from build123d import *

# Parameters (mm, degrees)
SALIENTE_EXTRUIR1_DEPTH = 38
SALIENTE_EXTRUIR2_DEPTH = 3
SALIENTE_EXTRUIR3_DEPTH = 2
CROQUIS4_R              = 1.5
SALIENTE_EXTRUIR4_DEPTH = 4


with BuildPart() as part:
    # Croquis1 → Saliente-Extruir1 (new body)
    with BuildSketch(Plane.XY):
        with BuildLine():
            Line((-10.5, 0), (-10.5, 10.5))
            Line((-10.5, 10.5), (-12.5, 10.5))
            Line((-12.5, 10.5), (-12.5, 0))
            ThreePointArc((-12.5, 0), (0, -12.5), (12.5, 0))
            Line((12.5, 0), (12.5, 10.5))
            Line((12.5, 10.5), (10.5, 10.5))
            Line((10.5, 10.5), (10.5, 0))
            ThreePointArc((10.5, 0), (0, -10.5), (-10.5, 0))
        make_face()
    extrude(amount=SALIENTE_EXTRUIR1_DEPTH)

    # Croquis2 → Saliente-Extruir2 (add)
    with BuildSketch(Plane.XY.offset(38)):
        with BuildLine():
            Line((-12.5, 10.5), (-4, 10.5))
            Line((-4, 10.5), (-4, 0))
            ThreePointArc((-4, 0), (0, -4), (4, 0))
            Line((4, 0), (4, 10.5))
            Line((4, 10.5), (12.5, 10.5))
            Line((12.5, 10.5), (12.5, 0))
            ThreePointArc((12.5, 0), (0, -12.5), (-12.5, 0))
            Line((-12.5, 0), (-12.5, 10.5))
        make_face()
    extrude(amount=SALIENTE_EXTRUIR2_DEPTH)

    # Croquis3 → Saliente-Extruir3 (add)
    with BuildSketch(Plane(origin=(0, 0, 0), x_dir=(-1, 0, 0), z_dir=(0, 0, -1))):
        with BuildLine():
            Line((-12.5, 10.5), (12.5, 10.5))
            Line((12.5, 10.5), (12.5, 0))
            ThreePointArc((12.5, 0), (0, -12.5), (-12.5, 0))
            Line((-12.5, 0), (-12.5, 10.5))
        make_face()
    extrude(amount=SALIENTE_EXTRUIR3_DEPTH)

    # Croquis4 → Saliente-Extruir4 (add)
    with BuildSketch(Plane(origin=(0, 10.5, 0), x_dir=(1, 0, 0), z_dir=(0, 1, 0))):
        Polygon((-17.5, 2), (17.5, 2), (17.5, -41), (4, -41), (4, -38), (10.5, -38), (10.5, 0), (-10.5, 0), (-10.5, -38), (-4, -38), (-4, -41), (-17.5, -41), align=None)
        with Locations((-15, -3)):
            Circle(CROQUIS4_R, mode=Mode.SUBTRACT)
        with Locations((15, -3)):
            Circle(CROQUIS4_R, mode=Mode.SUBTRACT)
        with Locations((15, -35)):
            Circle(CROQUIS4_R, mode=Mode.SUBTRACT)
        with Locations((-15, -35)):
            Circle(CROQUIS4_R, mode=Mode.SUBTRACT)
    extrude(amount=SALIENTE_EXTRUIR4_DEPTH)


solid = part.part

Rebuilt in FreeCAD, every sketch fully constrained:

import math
import FreeCAD as App
import Part
import Sketcher
from FreeCAD import Vector

doc = App.newDocument("Part")
body = doc.addObject("PartDesign::Body", "Body")

# Sketch on XY plane
sketch1 = doc.addObject("Sketcher::SketchObject", "Sketch")
body.addObject(sketch1)
sketch1.AttachmentSupport = (doc.XY_Plane, [""])
sketch1.MapMode = "FlatFace"
sketch1.addGeometry([
    Part.LineSegment(Vector(-10.5, 0, 0), Vector(-10.5, 10.5, 0)),  # 0
    Part.LineSegment(Vector(-10.5, 10.5, 0), Vector(-12.5, 10.5, 0)),  # 1
    Part.LineSegment(Vector(-12.5, 10.5, 0), Vector(-12.5, 0, 0)),  # 2
    Part.ArcOfCircle(Part.Circle(Vector(0, 0, 0), Vector(0, 0, 1), 12.5), math.radians(180), math.radians(360)),  # 3
    Part.LineSegment(Vector(12.5, 0, 0), Vector(12.5, 10.5, 0)),  # 4
    Part.LineSegment(Vector(12.5, 10.5, 0), Vector(10.5, 10.5, 0)),  # 5
    Part.LineSegment(Vector(10.5, 10.5, 0), Vector(10.5, 0, 0)),  # 6
    Part.ArcOfCircle(Part.Circle(Vector(0, 0, 0), Vector(0, 0, 1), 10.5), math.radians(180), math.radians(360)),  # 7
], False)
sketch1.addConstraint([
    Sketcher.Constraint("Coincident", 0, 2, 1, 1),
    Sketcher.Constraint("Coincident", 1, 2, 2, 1),
    Sketcher.Constraint("Tangent", 2, 2, 3, 1),
    Sketcher.Constraint("Tangent", 3, 2, 4, 1),
    Sketcher.Constraint("Coincident", 4, 2, 5, 1),
    Sketcher.Constraint("Coincident", 5, 2, 6, 1),
    Sketcher.Constraint("Tangent", 6, 2, 7, 2),
    Sketcher.Constraint("Tangent", 7, 1, 0, 1),
    Sketcher.Constraint("Vertical", 0),
    Sketcher.Constraint("Horizontal", 1),
    Sketcher.Constraint("Vertical", 2),
    Sketcher.Constraint("Vertical", 4),
    Sketcher.Constraint("Horizontal", 5),
    Sketcher.Constraint("Vertical", 6),
    Sketcher.Constraint("Coincident", 3, 3, -1, 1),
    Sketcher.Constraint("Coincident", 7, 3, -1, 1),
    Sketcher.Constraint("Horizontal", 1, 2, 4, 2),
    Sketcher.Constraint("Radius", 3, 12.5),
    Sketcher.Constraint("Radius", 7, 10.5),
    Sketcher.Constraint("DistanceY", 0, 1, 0, 2, 10.5),
])
pad1 = doc.addObject("PartDesign::Pad", "Pad")
body.addObject(pad1)
pad1.Profile = sketch1
pad1.Length = 38

# Sketch on XY plane
sketch2 = doc.addObject("Sketcher::SketchObject", "Sketch001")
body.addObject(sketch2)
sketch2.AttachmentSupport = (doc.XY_Plane, [""])
sketch2.MapMode = "FlatFace"
sketch2.AttachmentOffset = App.Placement(Vector(0, 0, 38), App.Rotation())
sketch2.addGeometry([
    Part.LineSegment(Vector(-4, 10.5, 0), Vector(-12.5, 10.5, 0)),  # 0
    Part.LineSegment(Vector(-12.5, 10.5, 0), Vector(-12.5, 0, 0)),  # 1
    Part.ArcOfCircle(Part.Circle(Vector(0, 0, 0), Vector(0, 0, 1), 12.5), math.radians(180), math.radians(360)),  # 2
    Part.LineSegment(Vector(12.5, 0, 0), Vector(12.5, 10.5, 0)),  # 3
    Part.LineSegment(Vector(12.5, 10.5, 0), Vector(4, 10.5, 0)),  # 4
    Part.LineSegment(Vector(4, 10.5, 0), Vector(4, 0, 0)),  # 5
    Part.ArcOfCircle(Part.Circle(Vector(0, 0, 0), Vector(0, 0, 1), 4), math.radians(180), math.radians(360)),  # 6
    Part.LineSegment(Vector(-4, 0, 0), Vector(-4, 10.5, 0)),  # 7
], False)
sketch2.addConstraint([
    Sketcher.Constraint("Coincident", 0, 2, 1, 1),
    Sketcher.Constraint("Tangent", 1, 2, 2, 1),
    Sketcher.Constraint("Tangent", 2, 2, 3, 1),
    Sketcher.Constraint("Coincident", 3, 2, 4, 1),
    Sketcher.Constraint("Coincident", 4, 2, 5, 1),
    Sketcher.Constraint("Tangent", 5, 2, 6, 2),
    Sketcher.Constraint("Tangent", 6, 1, 7, 1),
    Sketcher.Constraint("Coincident", 7, 2, 0, 1),
    Sketcher.Constraint("Horizontal", 0),
    Sketcher.Constraint("Vertical", 1),
    Sketcher.Constraint("Vertical", 3),
    Sketcher.Constraint("Horizontal", 4),
    Sketcher.Constraint("Vertical", 5),
    Sketcher.Constraint("Vertical", 7),
    Sketcher.Constraint("Coincident", 2, 3, -1, 1),
    Sketcher.Constraint("Coincident", 6, 3, -1, 1),
    Sketcher.Constraint("Horizontal", 0, 2, 3, 2),
    Sketcher.Constraint("Radius", 6, 4.0),
    Sketcher.Constraint("Radius", 2, 12.5),
    Sketcher.Constraint("DistanceY", 1, 2, 1, 1, 10.5),
])
pad2 = doc.addObject("PartDesign::Pad", "Pad001")
body.addObject(pad2)
pad2.Profile = sketch2
pad2.Length = 3

# Sketch on XY plane
sketch3 = doc.addObject("Sketcher::SketchObject", "Sketch002")
body.addObject(sketch3)
sketch3.AttachmentSupport = (doc.XY_Plane, [""])
sketch3.MapMode = "FlatFace"
sketch3.addGeometry([
    Part.LineSegment(Vector(-12.5, 10.5, 0), Vector(12.5, 10.5, 0)),
    Part.LineSegment(Vector(12.5, 10.5, 0), Vector(12.5, 0, 0)),
    Part.ArcOfCircle(Part.Circle(Vector(0, 0, 0), Vector(0, 0, 1), 12.5), math.radians(180), math.radians(360)),
    Part.LineSegment(Vector(-12.5, 0, 0), Vector(-12.5, 10.5, 0)),
], False)
sketch3.addConstraint([
    Sketcher.Constraint("Coincident", 0, 2, 1, 1),
    Sketcher.Constraint("Tangent", 1, 2, 2, 2),
    Sketcher.Constraint("Tangent", 2, 1, 3, 1),
    Sketcher.Constraint("Coincident", 3, 2, 0, 1),
    Sketcher.Constraint("Horizontal", 0),
    Sketcher.Constraint("Vertical", 1),
    Sketcher.Constraint("Vertical", 3),
    Sketcher.Constraint("Coincident", 2, 3, -1, 1),
    Sketcher.Constraint("Radius", 2, 12.5),
    Sketcher.Constraint("DistanceY", 1, 2, 1, 1, 10.5),
])
pad3 = doc.addObject("PartDesign::Pad", "Pad002")
body.addObject(pad3)
pad3.Profile = sketch3
pad3.Length = 2
pad3.Reversed = True

# Sketch on XZ plane
sketch4 = doc.addObject("Sketcher::SketchObject", "Sketch003")
body.addObject(sketch4)
sketch4.AttachmentSupport = (doc.XZ_Plane, [""])
sketch4.MapMode = "FlatFace"
sketch4.AttachmentOffset = App.Placement(Vector(0, 0, -10.5), App.Rotation())
sketch4.addGeometry([
    Part.LineSegment(Vector(17.5, -2, 0), Vector(-17.5, -2, 0)),  # 0
    Part.LineSegment(Vector(-17.5, -2, 0), Vector(-17.5, 41, 0)),  # 1
    Part.LineSegment(Vector(-17.5, 41, 0), Vector(-4, 41, 0)),  # 2
    Part.LineSegment(Vector(-4, 41, 0), Vector(-4, 38, 0)),  # 3
    Part.LineSegment(Vector(-4, 38, 0), Vector(-10.5, 38, 0)),  # 4
    Part.LineSegment(Vector(-10.5, 38, 0), Vector(-10.5, 0, 0)),  # 5
    Part.LineSegment(Vector(-10.5, 0, 0), Vector(10.5, 0, 0)),  # 6
    Part.LineSegment(Vector(10.5, 0, 0), Vector(10.5, 38, 0)),  # 7
    Part.LineSegment(Vector(10.5, 38, 0), Vector(4, 38, 0)),  # 8
    Part.LineSegment(Vector(4, 38, 0), Vector(4, 41, 0)),  # 9
    Part.LineSegment(Vector(4, 41, 0), Vector(17.5, 41, 0)),  # 10
    Part.LineSegment(Vector(17.5, 41, 0), Vector(17.5, -2, 0)),  # 11
    Part.Circle(Vector(15, 35, 0), Vector(0, 0, 1), 1.5),  # 12
    Part.Circle(Vector(-15, 35, 0), Vector(0, 0, 1), 1.5),  # 13
    Part.Circle(Vector(15, 3, 0), Vector(0, 0, 1), 1.5),  # 14
    Part.Circle(Vector(-15, 3, 0), Vector(0, 0, 1), 1.5),  # 15
], False)
sketch4.addConstraint([
    Sketcher.Constraint("Coincident", 0, 2, 1, 1),
    Sketcher.Constraint("Coincident", 1, 2, 2, 1),
    Sketcher.Constraint("Coincident", 2, 2, 3, 1),
    Sketcher.Constraint("Coincident", 3, 2, 4, 1),
    Sketcher.Constraint("Coincident", 4, 2, 5, 1),
    Sketcher.Constraint("Coincident", 5, 2, 6, 1),
    Sketcher.Constraint("Coincident", 6, 2, 7, 1),
    Sketcher.Constraint("Coincident", 7, 2, 8, 1),
    Sketcher.Constraint("Coincident", 8, 2, 9, 1),
    Sketcher.Constraint("Coincident", 9, 2, 10, 1),
    Sketcher.Constraint("Coincident", 10, 2, 11, 1),
    Sketcher.Constraint("Coincident", 11, 2, 0, 1),
    Sketcher.Constraint("Horizontal", 0),
    Sketcher.Constraint("Vertical", 1),
    Sketcher.Constraint("Horizontal", 2),
    Sketcher.Constraint("Vertical", 3),
    Sketcher.Constraint("Horizontal", 4),
    Sketcher.Constraint("Vertical", 5),
    Sketcher.Constraint("Horizontal", 6),
    Sketcher.Constraint("Vertical", 7),
    Sketcher.Constraint("Horizontal", 8),
    Sketcher.Constraint("Vertical", 9),
    Sketcher.Constraint("Horizontal", 10),
    Sketcher.Constraint("Vertical", 11),
    Sketcher.Constraint("Equal", 12, 13),
    Sketcher.Constraint("Equal", 13, 14),
    Sketcher.Constraint("Equal", 14, 15),
    Sketcher.Constraint("Symmetric", 5, 2, 6, 2, -1, 1),
    Sketcher.Constraint("Symmetric", 12, 3, 13, 3, -2),
    Sketcher.Constraint("Symmetric", 14, 3, 15, 3, -2),
    Sketcher.Constraint("Symmetric", 3, 2, 8, 2, -2),
    Sketcher.Constraint("Symmetric", 1, 2, 10, 2, -2),
    Sketcher.Constraint("Vertical", 12, 3, 14, 3),
    Sketcher.Constraint("Diameter", 12, 3.0),
    Sketcher.Constraint("DistanceX", 0, 2, 0, 1, 35.0),
    Sketcher.Constraint("DistanceX", 6, 1, 6, 2, 21.0),
    Sketcher.Constraint("DistanceY", 1, 1, 1, 2, 43.0),
    Sketcher.Constraint("DistanceY", 3, 2, 3, 1, 3.0),
    Sketcher.Constraint("DistanceY", 5, 2, 5, 1, 38.0),
    Sketcher.Constraint("DistanceX", 2, 1, 2, 2, 13.5),
    Sketcher.Constraint("DistanceX", -1, 1, 12, 3, 15.0),
    Sketcher.Constraint("DistanceY", -1, 1, 12, 3, 35.0),
    Sketcher.Constraint("DistanceY", -1, 1, 14, 3, 3.0),
])
pad4 = doc.addObject("PartDesign::Pad", "Pad003")
body.addObject(pad4)
pad4.Profile = sketch4
pad4.Length = 4
pad4.Reversed = True

doc.recompute()
